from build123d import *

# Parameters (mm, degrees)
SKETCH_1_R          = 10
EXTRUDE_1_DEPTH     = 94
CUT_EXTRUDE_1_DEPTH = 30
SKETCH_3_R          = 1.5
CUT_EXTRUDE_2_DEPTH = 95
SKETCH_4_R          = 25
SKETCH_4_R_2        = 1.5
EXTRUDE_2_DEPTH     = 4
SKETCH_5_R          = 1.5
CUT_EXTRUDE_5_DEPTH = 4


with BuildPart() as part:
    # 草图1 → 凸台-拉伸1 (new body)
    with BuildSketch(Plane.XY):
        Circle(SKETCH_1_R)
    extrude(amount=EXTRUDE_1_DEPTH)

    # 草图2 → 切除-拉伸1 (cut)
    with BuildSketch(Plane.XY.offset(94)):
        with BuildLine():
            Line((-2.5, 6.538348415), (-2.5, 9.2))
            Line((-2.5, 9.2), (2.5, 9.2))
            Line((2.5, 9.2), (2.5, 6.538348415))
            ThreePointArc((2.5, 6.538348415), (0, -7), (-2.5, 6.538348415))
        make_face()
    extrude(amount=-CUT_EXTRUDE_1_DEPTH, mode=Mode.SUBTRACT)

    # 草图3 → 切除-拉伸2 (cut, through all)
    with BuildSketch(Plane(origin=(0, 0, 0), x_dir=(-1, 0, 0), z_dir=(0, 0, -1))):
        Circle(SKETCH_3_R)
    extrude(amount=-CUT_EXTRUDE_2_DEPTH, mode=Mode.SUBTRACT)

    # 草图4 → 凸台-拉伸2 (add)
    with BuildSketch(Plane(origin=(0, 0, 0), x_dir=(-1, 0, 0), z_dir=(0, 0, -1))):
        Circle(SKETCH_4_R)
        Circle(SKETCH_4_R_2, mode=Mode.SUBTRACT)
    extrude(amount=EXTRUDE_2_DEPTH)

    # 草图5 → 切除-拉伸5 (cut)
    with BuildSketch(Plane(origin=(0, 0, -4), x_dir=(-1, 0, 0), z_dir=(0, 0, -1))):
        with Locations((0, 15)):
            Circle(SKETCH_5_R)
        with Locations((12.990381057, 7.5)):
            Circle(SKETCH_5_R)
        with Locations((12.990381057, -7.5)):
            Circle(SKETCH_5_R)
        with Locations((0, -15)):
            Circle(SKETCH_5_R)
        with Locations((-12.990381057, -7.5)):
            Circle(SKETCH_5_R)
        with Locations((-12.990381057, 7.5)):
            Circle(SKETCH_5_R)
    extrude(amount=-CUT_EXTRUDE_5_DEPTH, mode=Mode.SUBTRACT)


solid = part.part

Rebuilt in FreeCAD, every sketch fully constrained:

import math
import FreeCAD as App
import Part
import Sketcher
Q = App.Units.Quantity

doc = App.newDocument("Part")
body = doc.addObject("PartDesign::Body", "Body")

sketch1 = doc.addObject("Sketcher::SketchObject", "Sketch")
body.addObject(sketch1)
sketch1.AttachmentSupport = (doc.XY_Plane, [""])
sketch1.MapMode = "FlatFace"
sketch1.addGeometry(Part.Circle(App.Vector(0, 0, 0), App.Vector(0, 0, 1), 10), False)
sketch1.addConstraint(Sketcher.Constraint("Coincident", 0, 3, -1, 1))
sketch1.addConstraint(Sketcher.Constraint("Diameter", 0, Q("20 mm")))
pad1 = doc.addObject("PartDesign::Pad", "Pad")
body.addObject(pad1)
pad1.Profile = sketch1
pad1.Length = 94

sketch2 = doc.addObject("Sketcher::SketchObject", "Sketch001")
body.addObject(sketch2)
sketch2.AttachmentSupport = (doc.XY_Plane, [""])
sketch2.MapMode = "FlatFace"
sketch2.AttachmentOffset = App.Placement(App.Vector(0, 0, 94), App.Rotation())
sketch2.addGeometry(Part.LineSegment(App.Vector(-2.5, 9.2, 0), App.Vector(-2.5, 6.5, 0)), False)
sketch2.addGeometry(Part.ArcOfCircle(Part.Circle(App.Vector(0, 0, 0), App.Vector(0, 0, 1), 7), math.radians(111), math.radians(429)), False)
sketch2.addGeometry(Part.LineSegment(App.Vector(2.5, 6.5, 0), App.Vector(2.5, 9.2, 0)), False)
sketch2.addGeometry(Part.LineSegment(App.Vector(2.5, 9.2, 0), App.Vector(-2.5, 9.2, 0)), False)
sketch2.addConstraint(Sketcher.Constraint("Coincident", 0, 2, 1, 1))
sketch2.addConstraint(Sketcher.Constraint("Coincident", 1, 2, 2, 1))
sketch2.addConstraint(Sketcher.Constraint("Coincident", 2, 2, 3, 1))
sketch2.addConstraint(Sketcher.Constraint("Coincident", 3, 2, 0, 1))
sketch2.addConstraint(Sketcher.Constraint("Vertical", 0))
sketch2.addConstraint(Sketcher.Constraint("Vertical", 2))
sketch2.addConstraint(Sketcher.Constraint("Horizontal", 3))
sketch2.addConstraint(Sketcher.Constraint("Coincident", 1, 3, -1, 1))
sketch2.addConstraint(Sketcher.Constraint("Horizontal", 0, 2, 1, 2))
sketch2.addConstraint(Sketcher.Constraint("Radius", 1, Q("7 mm")))
sketch2.addConstraint(Sketcher.Constraint("DistanceX", 3, 2, 3, 1, Q("5 mm")))
sketch2.addConstraint(Sketcher.Constraint("DistanceY", -1, 1, 2, 2, Q("9.2 mm")))
pocket1 = doc.addObject("PartDesign::Pocket", "Pocket")
body.addObject(pocket1)
pocket1.Profile = sketch2
pocket1.Length = 30

sketch3 = doc.addObject("Sketcher::SketchObject", "Sketch002")
body.addObject(sketch3)
sketch3.AttachmentSupport = (doc.XY_Plane, [""])
sketch3.MapMode = "FlatFace"
sketch3.addGeometry(Part.Circle(App.Vector(0, 0, 0), App.Vector(0, 0, 1), 1.5), False)
sketch3.addConstraint(Sketcher.Constraint("Coincident", 0, 3, -1, 1))
sketch3.addConstraint(Sketcher.Constraint("Diameter", 0, Q("3 mm")))
pocket2 = doc.addObject("PartDesign::Pocket", "Pocket001")
body.addObject(pocket2)
pocket2.Profile = sketch3
pocket2.Type = "ThroughAll"
pocket2.Reversed = True

sketch4 = doc.addObject("Sketcher::SketchObject", "Sketch003")
body.addObject(sketch4)
sketch4.AttachmentSupport = (doc.XY_Plane, [""])
sketch4.MapMode = "FlatFace"
sketch4.addGeometry(Part.Circle(App.Vector(0, 0, 0), App.Vector(0, 0, 1), 25), False)
sketch4.addGeometry(Part.Circle(App.Vector(0, 0, 0), App.Vector(0, 0, 1), 1.5), False)
sketch4.addConstraint(Sketcher.Constraint("Coincident", 0, 3, -1, 1))
sketch4.addConstraint(Sketcher.Constraint("Coincident", 1, 3, -1, 1))
sketch4.addConstraint(Sketcher.Constraint("Diameter", 0, Q("50 mm")))
sketch4.addConstraint(Sketcher.Constraint("Diameter", 1, Q("3 mm")))
pad2 = doc.addObject("PartDesign::Pad", "Pad001")
body.addObject(pad2)
pad2.Profile = sketch4
pad2.Length = 4
pad2.Reversed = True

sketch5 = doc.addObject("Sketcher::SketchObject", "Sketch004")
body.addObject(sketch5)
sketch5.AttachmentSupport = (doc.XY_Plane, [""])
sketch5.MapMode = "FlatFace"
sketch5.AttachmentOffset = App.Placement(App.Vector(0, 0, -4), App.Rotation())
sketch5.addGeometry(Part.Circle(App.Vector(0, 15, 0), App.Vector(0, 0, 1), 1.5), False)
sketch5.addGeometry(Part.Circle(App.Vector(-13, 7.5, 0), App.Vector(0, 0, 1), 1.5), False)
sketch5.addGeometry(Part.Circle(App.Vector(-13, -7.5, 0), App.Vector(0, 0, 1), 1.5), False)
sketch5.addGeometry(Part.Circle(App.Vector(0, -15, 0), App.Vector(0, 0, 1), 1.5), False)
sketch5.addGeometry(Part.Circle(App.Vector(13, -7.5, 0), App.Vector(0, 0, 1), 1.5), False)
sketch5.addGeometry(Part.Circle(App.Vector(13, 7.5, 0), App.Vector(0, 0, 1), 1.5), False)
sketch5.addConstraint(Sketcher.Constraint("Equal", 0, 1))
sketch5.addConstraint(Sketcher.Constraint("Equal", 1, 2))
sketch5.addConstraint(Sketcher.Constraint("Equal", 2, 3))
sketch5.addConstraint(Sketcher.Constraint("Equal", 3, 4))
sketch5.addConstraint(Sketcher.Constraint("Equal", 4, 5))
sketch5.addConstraint(Sketcher.Constraint("Symmetric", 0, 3, 3, 3, -1, 1))
sketch5.addConstraint(Sketcher.Constraint("Symmetric", 1, 3, 4, 3, -1, 1))
sketch5.addConstraint(Sketcher.Constraint("Symmetric", 2, 3, 5, 3, -1, 1))
sketch5.addConstraint(Sketcher.Constraint("Symmetric", 2, 3, 4, 3, -2))
sketch5.addConstraint(Sketcher.Constraint("PointOnObject", 0, 3, -2))
sketch5.addConstraint(Sketcher.Constraint("Diameter", 0, Q("3 mm")))
sketch5.addConstraint(Sketcher.Constraint("DistanceY", -1, 1, 0, 3, Q("15 mm")))
sketch5.addConstraint(Sketcher.Constraint("DistanceY", 2, 3, 1, 3, Q("15 mm")))
sketch5.addConstraint(Sketcher.Constraint("DistanceX", 1, 3, -1, 1, Q("12.990381 mm")))
pocket3 = doc.addObject("PartDesign::Pocket", "Pocket002")
body.addObject(pocket3)
pocket3.Profile = sketch5
pocket3.Length = 4
pocket3.Reversed = True

doc.recompute()
